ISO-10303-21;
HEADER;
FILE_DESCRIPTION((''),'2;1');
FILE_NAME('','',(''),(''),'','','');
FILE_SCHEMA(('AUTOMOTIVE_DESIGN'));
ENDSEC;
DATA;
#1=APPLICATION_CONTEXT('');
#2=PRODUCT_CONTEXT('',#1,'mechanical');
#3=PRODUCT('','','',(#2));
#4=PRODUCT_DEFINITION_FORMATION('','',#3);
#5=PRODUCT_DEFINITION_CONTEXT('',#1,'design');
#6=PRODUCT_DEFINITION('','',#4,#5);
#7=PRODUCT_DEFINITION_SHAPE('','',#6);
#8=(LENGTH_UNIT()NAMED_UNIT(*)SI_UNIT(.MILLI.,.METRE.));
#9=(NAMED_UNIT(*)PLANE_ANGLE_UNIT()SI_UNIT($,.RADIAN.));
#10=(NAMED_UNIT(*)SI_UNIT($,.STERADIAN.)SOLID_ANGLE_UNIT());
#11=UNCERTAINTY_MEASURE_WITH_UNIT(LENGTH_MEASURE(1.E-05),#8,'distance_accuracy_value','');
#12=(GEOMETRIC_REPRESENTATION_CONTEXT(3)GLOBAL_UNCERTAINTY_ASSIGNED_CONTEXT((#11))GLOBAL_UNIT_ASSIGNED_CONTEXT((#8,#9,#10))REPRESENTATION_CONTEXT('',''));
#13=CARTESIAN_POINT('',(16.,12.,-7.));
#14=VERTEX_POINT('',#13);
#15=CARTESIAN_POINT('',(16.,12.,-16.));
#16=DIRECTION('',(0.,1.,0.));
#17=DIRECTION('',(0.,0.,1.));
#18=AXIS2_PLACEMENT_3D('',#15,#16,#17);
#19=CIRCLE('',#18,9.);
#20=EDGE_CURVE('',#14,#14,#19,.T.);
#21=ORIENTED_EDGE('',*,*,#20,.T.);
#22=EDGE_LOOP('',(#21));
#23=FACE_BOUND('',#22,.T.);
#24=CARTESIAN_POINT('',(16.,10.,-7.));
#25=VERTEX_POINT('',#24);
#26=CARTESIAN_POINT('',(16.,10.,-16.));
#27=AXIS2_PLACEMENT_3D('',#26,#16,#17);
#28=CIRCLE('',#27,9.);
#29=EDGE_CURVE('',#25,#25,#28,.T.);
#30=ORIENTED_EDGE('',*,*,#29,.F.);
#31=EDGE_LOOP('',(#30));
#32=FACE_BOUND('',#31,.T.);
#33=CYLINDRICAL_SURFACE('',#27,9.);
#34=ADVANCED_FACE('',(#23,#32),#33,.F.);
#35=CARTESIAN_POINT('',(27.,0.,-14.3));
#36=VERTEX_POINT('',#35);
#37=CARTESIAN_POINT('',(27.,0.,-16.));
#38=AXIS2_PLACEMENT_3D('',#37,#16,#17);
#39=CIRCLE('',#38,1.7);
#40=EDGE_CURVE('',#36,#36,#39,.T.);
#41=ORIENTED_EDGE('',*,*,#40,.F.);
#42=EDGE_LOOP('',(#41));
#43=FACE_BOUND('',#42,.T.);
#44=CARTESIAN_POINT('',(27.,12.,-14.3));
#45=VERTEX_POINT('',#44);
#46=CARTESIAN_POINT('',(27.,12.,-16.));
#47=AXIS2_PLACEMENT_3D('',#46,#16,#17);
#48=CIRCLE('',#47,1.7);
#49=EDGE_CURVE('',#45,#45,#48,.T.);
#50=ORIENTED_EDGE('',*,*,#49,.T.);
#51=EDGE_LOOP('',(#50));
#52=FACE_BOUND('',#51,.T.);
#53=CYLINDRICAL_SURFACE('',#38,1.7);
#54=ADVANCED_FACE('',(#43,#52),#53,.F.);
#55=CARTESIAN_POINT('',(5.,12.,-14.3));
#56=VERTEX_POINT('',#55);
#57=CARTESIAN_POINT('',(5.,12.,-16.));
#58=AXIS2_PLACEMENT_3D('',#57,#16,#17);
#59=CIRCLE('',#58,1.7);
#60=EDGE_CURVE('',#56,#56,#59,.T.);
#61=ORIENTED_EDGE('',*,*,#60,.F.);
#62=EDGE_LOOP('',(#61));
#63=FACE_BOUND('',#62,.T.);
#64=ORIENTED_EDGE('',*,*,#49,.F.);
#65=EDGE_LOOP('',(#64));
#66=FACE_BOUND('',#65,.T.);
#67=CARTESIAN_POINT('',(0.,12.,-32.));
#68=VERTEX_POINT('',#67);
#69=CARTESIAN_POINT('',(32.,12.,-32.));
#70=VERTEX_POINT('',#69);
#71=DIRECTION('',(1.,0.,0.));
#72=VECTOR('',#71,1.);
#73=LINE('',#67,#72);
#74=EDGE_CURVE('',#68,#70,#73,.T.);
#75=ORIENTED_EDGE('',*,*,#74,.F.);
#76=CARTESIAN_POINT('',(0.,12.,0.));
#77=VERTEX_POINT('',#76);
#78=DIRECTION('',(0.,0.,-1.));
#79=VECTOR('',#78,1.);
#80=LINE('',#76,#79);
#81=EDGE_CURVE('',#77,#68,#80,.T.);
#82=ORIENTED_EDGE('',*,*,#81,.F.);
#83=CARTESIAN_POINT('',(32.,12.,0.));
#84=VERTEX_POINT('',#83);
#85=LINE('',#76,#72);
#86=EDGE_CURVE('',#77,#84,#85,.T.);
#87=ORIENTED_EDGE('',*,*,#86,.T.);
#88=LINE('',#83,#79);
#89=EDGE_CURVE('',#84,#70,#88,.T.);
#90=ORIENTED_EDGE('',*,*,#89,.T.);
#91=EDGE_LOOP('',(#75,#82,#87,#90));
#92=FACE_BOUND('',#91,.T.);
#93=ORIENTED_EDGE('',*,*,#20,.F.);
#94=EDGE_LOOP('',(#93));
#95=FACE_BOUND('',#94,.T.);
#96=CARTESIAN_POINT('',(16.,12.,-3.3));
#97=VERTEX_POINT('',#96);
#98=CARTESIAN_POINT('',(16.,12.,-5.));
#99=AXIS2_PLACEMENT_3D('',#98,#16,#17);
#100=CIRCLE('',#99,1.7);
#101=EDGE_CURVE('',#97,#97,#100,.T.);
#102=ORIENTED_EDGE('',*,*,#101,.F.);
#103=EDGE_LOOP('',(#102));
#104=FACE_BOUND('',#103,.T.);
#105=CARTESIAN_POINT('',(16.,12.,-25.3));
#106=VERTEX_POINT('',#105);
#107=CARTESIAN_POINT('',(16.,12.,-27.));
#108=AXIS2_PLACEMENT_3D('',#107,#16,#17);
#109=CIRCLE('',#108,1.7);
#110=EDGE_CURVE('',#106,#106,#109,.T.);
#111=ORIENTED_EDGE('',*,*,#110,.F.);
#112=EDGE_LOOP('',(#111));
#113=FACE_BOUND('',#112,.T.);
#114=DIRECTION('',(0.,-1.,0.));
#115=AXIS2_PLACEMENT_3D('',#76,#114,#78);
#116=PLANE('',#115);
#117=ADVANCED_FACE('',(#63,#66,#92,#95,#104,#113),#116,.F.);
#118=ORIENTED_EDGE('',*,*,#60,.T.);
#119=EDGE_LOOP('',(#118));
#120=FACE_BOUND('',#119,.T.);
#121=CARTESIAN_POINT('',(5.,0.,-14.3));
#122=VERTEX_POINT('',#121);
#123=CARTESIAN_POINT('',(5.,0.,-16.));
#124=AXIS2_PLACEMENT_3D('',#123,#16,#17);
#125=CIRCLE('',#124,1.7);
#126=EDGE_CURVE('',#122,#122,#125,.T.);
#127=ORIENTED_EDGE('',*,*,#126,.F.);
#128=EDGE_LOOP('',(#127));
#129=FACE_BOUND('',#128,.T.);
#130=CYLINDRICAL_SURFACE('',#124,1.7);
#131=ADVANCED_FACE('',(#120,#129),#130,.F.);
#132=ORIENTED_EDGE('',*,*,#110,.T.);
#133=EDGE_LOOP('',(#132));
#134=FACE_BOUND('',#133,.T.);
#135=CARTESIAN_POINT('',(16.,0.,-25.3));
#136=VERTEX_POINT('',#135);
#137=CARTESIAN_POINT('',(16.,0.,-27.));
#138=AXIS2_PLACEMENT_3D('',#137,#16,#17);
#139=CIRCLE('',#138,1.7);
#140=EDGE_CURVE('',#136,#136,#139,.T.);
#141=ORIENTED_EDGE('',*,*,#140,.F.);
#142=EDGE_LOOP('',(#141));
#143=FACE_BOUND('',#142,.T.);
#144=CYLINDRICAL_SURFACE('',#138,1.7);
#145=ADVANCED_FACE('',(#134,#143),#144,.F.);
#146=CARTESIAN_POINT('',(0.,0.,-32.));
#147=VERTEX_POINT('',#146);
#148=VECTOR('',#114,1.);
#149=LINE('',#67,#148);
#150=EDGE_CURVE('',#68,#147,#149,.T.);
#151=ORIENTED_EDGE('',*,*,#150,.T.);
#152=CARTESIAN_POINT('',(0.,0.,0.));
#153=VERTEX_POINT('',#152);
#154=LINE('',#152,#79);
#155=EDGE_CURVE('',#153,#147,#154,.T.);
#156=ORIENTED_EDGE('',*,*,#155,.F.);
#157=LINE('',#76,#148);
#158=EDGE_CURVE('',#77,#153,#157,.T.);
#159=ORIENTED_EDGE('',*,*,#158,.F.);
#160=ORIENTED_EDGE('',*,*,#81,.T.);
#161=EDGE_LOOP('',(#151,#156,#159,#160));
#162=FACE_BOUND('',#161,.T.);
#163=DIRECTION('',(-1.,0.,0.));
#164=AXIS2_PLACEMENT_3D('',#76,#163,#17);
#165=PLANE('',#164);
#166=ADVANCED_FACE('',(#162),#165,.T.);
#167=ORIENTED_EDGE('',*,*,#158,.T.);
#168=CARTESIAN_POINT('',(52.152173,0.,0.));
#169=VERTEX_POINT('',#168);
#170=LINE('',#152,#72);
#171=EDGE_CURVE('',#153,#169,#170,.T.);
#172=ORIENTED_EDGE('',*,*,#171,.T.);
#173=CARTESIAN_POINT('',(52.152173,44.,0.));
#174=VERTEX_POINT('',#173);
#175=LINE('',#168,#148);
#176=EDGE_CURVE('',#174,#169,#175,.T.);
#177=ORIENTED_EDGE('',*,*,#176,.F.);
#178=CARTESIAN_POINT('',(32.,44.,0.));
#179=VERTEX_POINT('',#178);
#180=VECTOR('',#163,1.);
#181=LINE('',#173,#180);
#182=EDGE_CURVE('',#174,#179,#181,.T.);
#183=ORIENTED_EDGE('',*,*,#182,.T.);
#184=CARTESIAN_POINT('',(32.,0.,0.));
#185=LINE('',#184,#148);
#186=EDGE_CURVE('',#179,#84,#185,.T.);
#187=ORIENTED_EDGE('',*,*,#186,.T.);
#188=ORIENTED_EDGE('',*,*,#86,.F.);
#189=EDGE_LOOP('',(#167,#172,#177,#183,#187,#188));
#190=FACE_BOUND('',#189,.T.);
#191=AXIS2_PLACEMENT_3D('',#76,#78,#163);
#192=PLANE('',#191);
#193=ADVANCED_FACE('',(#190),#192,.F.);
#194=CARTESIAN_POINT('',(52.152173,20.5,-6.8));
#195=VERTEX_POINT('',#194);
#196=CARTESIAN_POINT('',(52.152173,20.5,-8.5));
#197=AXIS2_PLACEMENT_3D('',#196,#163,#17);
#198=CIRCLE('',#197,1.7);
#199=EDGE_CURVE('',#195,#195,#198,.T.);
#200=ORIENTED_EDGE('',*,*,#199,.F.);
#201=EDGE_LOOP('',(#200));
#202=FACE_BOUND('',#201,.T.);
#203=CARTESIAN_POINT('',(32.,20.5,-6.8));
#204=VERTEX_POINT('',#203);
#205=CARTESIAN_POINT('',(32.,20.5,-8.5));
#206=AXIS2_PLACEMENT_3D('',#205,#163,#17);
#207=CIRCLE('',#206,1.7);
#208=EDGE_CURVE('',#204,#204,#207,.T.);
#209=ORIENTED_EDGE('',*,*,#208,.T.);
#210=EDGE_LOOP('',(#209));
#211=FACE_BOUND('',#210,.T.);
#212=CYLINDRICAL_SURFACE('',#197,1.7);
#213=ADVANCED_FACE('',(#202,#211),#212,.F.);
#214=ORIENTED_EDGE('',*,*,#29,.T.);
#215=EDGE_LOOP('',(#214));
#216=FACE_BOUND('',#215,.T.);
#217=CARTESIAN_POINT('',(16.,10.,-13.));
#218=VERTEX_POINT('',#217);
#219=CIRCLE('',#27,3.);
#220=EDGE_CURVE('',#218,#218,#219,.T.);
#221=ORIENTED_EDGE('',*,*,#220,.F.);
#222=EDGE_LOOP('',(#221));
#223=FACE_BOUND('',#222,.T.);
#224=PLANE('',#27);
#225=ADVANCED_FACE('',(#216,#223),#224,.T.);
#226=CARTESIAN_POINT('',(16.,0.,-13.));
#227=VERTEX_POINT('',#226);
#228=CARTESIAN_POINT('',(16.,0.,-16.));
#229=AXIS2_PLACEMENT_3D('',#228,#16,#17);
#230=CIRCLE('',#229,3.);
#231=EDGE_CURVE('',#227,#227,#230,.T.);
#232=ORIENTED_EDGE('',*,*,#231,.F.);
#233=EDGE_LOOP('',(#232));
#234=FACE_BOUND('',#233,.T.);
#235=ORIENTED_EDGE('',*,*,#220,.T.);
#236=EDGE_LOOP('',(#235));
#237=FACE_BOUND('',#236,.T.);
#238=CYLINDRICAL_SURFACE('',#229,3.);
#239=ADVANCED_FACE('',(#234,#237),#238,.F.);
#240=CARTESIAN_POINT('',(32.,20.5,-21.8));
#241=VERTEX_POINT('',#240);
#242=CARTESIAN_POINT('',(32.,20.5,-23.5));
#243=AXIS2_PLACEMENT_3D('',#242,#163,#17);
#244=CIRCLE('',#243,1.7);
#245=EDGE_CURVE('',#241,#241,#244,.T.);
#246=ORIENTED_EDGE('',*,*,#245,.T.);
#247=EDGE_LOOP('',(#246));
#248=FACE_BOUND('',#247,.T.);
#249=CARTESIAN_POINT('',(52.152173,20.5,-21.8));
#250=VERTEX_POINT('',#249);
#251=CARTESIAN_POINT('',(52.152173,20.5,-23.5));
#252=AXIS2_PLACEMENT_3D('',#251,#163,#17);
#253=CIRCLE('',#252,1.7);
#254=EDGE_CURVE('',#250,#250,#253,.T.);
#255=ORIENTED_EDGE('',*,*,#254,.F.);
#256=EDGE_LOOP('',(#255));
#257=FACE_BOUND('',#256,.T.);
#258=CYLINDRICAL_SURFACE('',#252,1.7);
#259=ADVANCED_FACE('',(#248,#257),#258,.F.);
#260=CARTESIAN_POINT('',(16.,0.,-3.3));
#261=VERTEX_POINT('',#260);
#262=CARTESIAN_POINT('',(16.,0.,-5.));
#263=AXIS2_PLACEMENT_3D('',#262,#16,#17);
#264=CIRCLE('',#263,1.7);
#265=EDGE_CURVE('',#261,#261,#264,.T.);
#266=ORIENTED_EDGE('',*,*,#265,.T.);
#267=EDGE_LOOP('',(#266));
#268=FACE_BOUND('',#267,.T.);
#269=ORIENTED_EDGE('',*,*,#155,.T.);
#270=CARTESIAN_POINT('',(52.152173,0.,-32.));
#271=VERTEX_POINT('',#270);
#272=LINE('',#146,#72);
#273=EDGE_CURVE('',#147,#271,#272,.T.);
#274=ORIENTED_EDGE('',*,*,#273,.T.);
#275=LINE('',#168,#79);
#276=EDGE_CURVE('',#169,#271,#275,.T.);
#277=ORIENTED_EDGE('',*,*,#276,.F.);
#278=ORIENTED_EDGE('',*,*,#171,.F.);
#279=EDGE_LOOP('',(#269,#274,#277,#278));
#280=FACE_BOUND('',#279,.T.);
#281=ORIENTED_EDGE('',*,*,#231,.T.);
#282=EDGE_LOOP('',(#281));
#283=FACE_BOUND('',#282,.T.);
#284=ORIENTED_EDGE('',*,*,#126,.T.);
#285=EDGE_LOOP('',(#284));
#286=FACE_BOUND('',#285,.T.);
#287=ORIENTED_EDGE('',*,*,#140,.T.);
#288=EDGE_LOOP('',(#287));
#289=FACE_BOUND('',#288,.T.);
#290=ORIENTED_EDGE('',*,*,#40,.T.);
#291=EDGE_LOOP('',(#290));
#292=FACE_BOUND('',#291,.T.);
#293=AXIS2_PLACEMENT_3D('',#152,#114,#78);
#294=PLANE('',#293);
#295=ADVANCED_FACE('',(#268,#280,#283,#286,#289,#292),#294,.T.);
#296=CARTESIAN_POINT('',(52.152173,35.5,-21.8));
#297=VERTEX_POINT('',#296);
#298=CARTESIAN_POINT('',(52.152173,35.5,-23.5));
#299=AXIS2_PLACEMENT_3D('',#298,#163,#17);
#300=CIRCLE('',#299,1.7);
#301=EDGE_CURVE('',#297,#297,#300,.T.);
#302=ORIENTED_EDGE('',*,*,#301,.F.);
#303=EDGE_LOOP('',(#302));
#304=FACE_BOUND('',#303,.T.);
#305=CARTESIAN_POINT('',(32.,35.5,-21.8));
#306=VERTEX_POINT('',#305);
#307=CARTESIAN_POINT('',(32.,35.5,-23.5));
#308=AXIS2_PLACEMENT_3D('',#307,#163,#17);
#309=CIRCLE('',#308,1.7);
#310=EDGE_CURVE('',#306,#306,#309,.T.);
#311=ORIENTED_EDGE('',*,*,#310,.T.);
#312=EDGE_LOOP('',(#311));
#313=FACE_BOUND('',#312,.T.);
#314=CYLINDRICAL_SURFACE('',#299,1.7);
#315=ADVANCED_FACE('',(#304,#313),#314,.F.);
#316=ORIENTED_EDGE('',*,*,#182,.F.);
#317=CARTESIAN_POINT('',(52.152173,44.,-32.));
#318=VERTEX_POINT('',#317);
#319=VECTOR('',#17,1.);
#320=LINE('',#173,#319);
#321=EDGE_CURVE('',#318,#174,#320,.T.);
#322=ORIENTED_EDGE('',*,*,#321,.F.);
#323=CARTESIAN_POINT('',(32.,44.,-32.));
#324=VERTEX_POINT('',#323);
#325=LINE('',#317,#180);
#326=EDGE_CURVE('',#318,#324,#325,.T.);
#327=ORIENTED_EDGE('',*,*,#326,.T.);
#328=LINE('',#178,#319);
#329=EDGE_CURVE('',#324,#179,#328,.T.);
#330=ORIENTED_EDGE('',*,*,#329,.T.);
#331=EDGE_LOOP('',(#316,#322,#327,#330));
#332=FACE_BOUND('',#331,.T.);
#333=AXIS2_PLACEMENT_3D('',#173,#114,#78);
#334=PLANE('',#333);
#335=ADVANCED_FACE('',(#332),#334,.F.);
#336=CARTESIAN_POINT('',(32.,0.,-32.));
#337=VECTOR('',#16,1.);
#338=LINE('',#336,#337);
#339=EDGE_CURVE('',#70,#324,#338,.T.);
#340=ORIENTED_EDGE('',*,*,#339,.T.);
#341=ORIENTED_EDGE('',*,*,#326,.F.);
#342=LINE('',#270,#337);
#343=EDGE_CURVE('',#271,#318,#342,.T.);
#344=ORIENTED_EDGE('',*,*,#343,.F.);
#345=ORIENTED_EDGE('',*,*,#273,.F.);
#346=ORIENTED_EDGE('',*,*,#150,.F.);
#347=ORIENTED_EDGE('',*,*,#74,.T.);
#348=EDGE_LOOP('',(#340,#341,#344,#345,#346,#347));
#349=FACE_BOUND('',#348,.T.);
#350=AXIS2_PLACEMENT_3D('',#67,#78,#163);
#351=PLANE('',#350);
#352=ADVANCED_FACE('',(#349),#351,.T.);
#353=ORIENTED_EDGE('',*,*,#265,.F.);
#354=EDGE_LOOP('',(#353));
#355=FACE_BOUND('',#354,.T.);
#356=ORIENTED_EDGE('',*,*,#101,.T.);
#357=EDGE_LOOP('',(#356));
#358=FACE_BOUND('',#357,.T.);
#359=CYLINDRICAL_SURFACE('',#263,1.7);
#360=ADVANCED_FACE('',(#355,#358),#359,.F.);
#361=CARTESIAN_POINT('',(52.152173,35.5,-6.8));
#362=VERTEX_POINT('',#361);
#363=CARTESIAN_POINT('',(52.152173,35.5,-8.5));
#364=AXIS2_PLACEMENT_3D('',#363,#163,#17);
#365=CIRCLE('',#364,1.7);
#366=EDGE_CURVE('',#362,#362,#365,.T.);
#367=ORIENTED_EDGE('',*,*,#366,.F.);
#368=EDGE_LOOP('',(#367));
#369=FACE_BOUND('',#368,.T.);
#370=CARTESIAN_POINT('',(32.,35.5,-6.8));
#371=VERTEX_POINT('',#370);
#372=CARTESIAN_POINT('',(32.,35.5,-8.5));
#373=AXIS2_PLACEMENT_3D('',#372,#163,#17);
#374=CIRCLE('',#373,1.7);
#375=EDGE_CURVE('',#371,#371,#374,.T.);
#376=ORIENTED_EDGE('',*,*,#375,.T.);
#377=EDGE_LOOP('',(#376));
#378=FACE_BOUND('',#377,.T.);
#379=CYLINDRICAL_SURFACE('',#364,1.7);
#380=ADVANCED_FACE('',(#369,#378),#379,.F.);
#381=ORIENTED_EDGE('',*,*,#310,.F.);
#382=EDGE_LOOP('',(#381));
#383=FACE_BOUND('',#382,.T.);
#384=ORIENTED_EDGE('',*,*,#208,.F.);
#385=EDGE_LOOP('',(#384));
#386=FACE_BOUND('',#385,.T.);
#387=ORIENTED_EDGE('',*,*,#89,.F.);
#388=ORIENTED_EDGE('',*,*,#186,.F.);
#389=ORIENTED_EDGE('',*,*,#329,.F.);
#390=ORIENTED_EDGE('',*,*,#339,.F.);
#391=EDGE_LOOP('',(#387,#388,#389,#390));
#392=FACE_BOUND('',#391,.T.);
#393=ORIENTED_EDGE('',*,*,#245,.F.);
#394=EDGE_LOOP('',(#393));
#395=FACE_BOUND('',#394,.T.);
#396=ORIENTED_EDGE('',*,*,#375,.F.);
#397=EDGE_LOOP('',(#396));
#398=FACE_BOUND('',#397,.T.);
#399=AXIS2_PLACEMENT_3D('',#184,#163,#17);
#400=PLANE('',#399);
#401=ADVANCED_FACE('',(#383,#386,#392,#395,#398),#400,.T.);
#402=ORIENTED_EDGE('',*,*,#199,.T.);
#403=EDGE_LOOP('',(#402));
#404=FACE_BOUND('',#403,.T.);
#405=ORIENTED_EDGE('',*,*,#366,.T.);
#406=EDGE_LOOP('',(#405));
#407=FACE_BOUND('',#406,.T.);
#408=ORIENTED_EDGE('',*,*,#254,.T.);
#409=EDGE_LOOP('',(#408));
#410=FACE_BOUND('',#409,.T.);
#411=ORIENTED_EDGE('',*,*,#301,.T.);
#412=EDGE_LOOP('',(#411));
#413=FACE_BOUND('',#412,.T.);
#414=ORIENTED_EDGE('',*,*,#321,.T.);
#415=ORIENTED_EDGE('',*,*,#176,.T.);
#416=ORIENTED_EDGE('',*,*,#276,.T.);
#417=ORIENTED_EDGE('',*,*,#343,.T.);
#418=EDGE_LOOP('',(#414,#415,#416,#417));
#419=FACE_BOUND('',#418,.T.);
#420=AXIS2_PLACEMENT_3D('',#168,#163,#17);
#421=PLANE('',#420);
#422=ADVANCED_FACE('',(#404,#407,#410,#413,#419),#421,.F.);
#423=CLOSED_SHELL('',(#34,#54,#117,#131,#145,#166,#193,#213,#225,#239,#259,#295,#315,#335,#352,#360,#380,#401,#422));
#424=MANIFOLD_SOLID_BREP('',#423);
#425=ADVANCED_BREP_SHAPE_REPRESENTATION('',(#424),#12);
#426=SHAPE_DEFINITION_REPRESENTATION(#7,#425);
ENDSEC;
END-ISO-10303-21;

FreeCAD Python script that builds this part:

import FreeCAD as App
import Part
import Sketcher
from FreeCAD import Vector

doc = App.newDocument("Part")
params = doc.addObject("Spreadsheet::Sheet", "Params")
for row, (alias, value) in enumerate([
    ("sketch1_width", "32 mm"),
    ("pad1_length", "12 mm"),
    ("sketch2_diameter", "18 mm"),
    ("pocket1_length", "2 mm"),
    ("sketch3_diameter", "6 mm"),
    ("sketch4_diameter", "3.4 mm"),
    ("sketch5_width", "44 mm"),
    ("sketch5_height", "32 mm"),
    ("pad2_length", "20.152173 mm"),
    ("sketch6_diameter", "3.4 mm"),
], start=1):
    params.set(f"A{row}", alias)
    params.set(f"B{row}", "=" + value)
    params.setAlias(f"B{row}", alias)

body = doc.addObject("PartDesign::Body", "Body")

sketch1 = body.newObject("Sketcher::SketchObject", "Sketch")
sketch1.AttachmentSupport = (doc.getObject("XZ_Plane"), [""])
sketch1.MapMode = "FlatFace"
sketch1.addGeometry([
    Part.LineSegment(Vector(0, -32, 0), Vector(0, 0, 0)),
    Part.LineSegment(Vector(0, 0, 0), Vector(32, 0, 0)),
    Part.LineSegment(Vector(32, 0, 0), Vector(32, -32, 0)),
    Part.LineSegment(Vector(32, -32, 0), Vector(0, -32, 0)),
], False)
sketch1.addConstraint([
    Sketcher.Constraint("Coincident", 0, 2, 1, 1),
    Sketcher.Constraint("Coincident", 1, 2, 2, 1),
    Sketcher.Constraint("Coincident", 2, 2, 3, 1),
    Sketcher.Constraint("Coincident", 3, 2, 0, 1),
    Sketcher.Constraint("Vertical", 0),
    Sketcher.Constraint("Horizontal", 1),
    Sketcher.Constraint("Vertical", 2),
    Sketcher.Constraint("Horizontal", 3),
    Sketcher.Constraint("Coincident", 0, 2, -1, 1),
    Sketcher.Constraint("Equal", 3, 0),
    Sketcher.Constraint("DistanceX", 1, 1, 1, 2, 32.0),
])
sketch1.setExpression("Constraints[10]", "Params.sketch1_width")
pad1 = body.newObject("PartDesign::Pad", "Pad")
pad1.Profile = sketch1
pad1.setExpression("Length", "Params.pad1_length")
pad1.Reversed = True

sketch2 = body.newObject("Sketcher::SketchObject", "Sketch001")
sketch2.AttachmentSupport = (doc.getObject("XZ_Plane"), [""])
sketch2.MapMode = "FlatFace"
sketch2.AttachmentOffset = App.Placement(Vector(0, 0, -12), App.Rotation())
sketch2.addGeometry(Part.Circle(Vector(16, -16, 0), Vector(0, 0, 1), 9), False)
sketch2.addConstraint([
    Sketcher.Constraint("Diameter", 0, 18.0),
    Sketcher.Constraint("DistanceX", -1, 1, 0, 3, 16.0),
    Sketcher.Constraint("DistanceY", 0, 3, -1, 1, 16.0),
])
sketch2.setExpression("Constraints[0]", "Params.sketch2_diameter")
pocket1 = body.newObject("PartDesign::Pocket", "Pocket")
pocket1.Profile = sketch2
pocket1.setExpression("Length", "Params.pocket1_length")
pocket1.Reversed = True

sketch3 = body.newObject("Sketcher::SketchObject", "Sketch002")
sketch3.AttachmentSupport = (doc.getObject("XZ_Plane"), [""])
sketch3.MapMode = "FlatFace"
sketch3.AttachmentOffset = App.Placement(Vector(0, 0, -10), App.Rotation())
sketch3.addGeometry(Part.Circle(Vector(16, -16, 0), Vector(0, 0, 1), 3), False)
sketch3.addConstraint([
    Sketcher.Constraint("Diameter", 0, 6.0),
    Sketcher.Constraint("DistanceX", -1, 1, 0, 3, 16.0),
    Sketcher.Constraint("DistanceY", 0, 3, -1, 1, 16.0),
])
sketch3.setExpression("Constraints[0]", "Params.sketch3_diameter")
pocket2 = body.newObject("PartDesign::Pocket", "Pocket001")
pocket2.Profile = sketch3
pocket2.Type = "ThroughAll"
pocket2.Reversed = True

sketch4 = body.newObject("Sketcher::SketchObject", "Sketch003")
sketch4.AttachmentSupport = (doc.getObject("XZ_Plane"), [""])
sketch4.MapMode = "FlatFace"
sketch4.AttachmentOffset = App.Placement(Vector(0, 0, -12), App.Rotation())
sketch4.addGeometry([
    Part.Circle(Vector(16, -27, 0), Vector(0, 0, 1), 1.7),
    Part.Circle(Vector(5, -16, 0), Vector(0, 0, 1), 1.7),
    Part.Circle(Vector(16, -5, 0), Vector(0, 0, 1), 1.7),
    Part.Circle(Vector(27, -16, 0), Vector(0, 0, 1), 1.7),
], False)
sketch4.addConstraint([
    Sketcher.Constraint("Equal", 0, 1),
    Sketcher.Constraint("Equal", 1, 2),
    Sketcher.Constraint("Equal", 2, 3),
    Sketcher.Constraint("Horizontal", 1, 3, 3, 3),
    Sketcher.Constraint("Vertical", 0, 3, 2, 3),
    Sketcher.Constraint("Diameter", 0, 3.4),
    Sketcher.Constraint("DistanceX", -1, 1, 0, 3, 16.0),
    Sketcher.Constraint("DistanceY", 0, 3, -1, 1, 27.0),
    Sketcher.Constraint("DistanceX", -1, 1, 1, 3, 5.0),
    Sketcher.Constraint("DistanceY", 1, 3, -1, 1, 16.0),
    Sketcher.Constraint("DistanceY", 2, 3, -1, 1, 5.0),
    Sketcher.Constraint("DistanceX", -1, 1, 3, 3, 27.0),
])
sketch4.setExpression("Constraints[5]", "Params.sketch4_diameter")
pocket3 = body.newObject("PartDesign::Pocket", "Pocket002")
pocket3.Profile = sketch4
pocket3.Type = "ThroughAll"
pocket3.Reversed = True

sketch5 = body.newObject("Sketcher::SketchObject", "Sketch004")
sketch5.AttachmentSupport = (doc.getObject("YZ_Plane"), [""])
sketch5.MapMode = "FlatFace"
sketch5.AttachmentOffset = App.Placement(Vector(0, 0, 32), App.Rotation())
sketch5.addGeometry([
    Part.LineSegment(Vector(44, 0, 0), Vector(0, 0, 0)),
    Part.LineSegment(Vector(0, 0, 0), Vector(0, -32, 0)),
    Part.LineSegment(Vector(0, -32, 0), Vector(44, -32, 0)),
    Part.LineSegment(Vector(44, -32, 0), Vector(44, 0, 0)),
], False)
sketch5.addConstraint([
    Sketcher.Constraint("Coincident", 0, 2, 1, 1),
    Sketcher.Constraint("Coincident", 1, 2, 2, 1),
    Sketcher.Constraint("Coincident", 2, 2, 3, 1),
    Sketcher.Constraint("Coincident", 3, 2, 0, 1),
    Sketcher.Constraint("Horizontal", 0),
    Sketcher.Constraint("Vertical", 1),
    Sketcher.Constraint("Horizontal", 2),
    Sketcher.Constraint("Vertical", 3),
    Sketcher.Constraint("Coincident", 0, 2, -1, 1),
    Sketcher.Constraint("DistanceX", 0, 2, 0, 1, 44.0),
    Sketcher.Constraint("DistanceY", 1, 2, 1, 1, 32.0),
])
sketch5.setExpression("Constraints[9]", "Params.sketch5_width")
sketch5.setExpression("Constraints[10]", "Params.sketch5_height")
pad2 = body.newObject("PartDesign::Pad", "Pad001")
pad2.Profile = sketch5
pad2.setExpression("Length", "Params.pad2_length")

sketch6 = body.newObject("Sketcher::SketchObject", "Sketch005")
sketch6.AttachmentSupport = (doc.getObject("YZ_Plane"), [""])
sketch6.MapMode = "FlatFace"
sketch6.AttachmentOffset = App.Placement(Vector(0, 0, 32), App.Rotation())
sketch6.addGeometry([
    Part.Circle(Vector(35.5, -23.5, 0), Vector(0, 0, 1), 1.7),
    Part.Circle(Vector(35.5, -8.5, 0), Vector(0, 0, 1), 1.7),
    Part.Circle(Vector(20.5, -8.5, 0), Vector(0, 0, 1), 1.7),
    Part.Circle(Vector(20.5, -23.5, 0), Vector(0, 0, 1), 1.7),
], False)
sketch6.addConstraint([
    Sketcher.Constraint("Equal", 0, 1),
    Sketcher.Constraint("Equal", 1, 2),
    Sketcher.Constraint("Equal", 2, 3),
    Sketcher.Constraint("Horizontal", 1, 3, 2, 3),
    Sketcher.Constraint("Horizontal", 0, 3, 3, 3),
    Sketcher.Constraint("Vertical", 0, 3, 1, 3),
    Sketcher.Constraint("Vertical", 2, 3, 3, 3),
    Sketcher.Constraint("Diameter", 0, 3.4),
    Sketcher.Constraint("DistanceY", 0, 3, 1, 3, 15.0),
    Sketcher.Constraint("DistanceX", 2, 3, 1, 3, 15.0),
    Sketcher.Constraint("DistanceX", -1, 1, 0, 3, 35.5),
    Sketcher.Constraint("DistanceY", 0, 3, -1, 1, 23.5),
])
sketch6.setExpression("Constraints[7]", "Params.sketch6_diameter")
pocket4 = body.newObject("PartDesign::Pocket", "Pocket003")
pocket4.Profile = sketch6
pocket4.Type = "ThroughAll"
pocket4.Reversed = True

doc.recompute()
